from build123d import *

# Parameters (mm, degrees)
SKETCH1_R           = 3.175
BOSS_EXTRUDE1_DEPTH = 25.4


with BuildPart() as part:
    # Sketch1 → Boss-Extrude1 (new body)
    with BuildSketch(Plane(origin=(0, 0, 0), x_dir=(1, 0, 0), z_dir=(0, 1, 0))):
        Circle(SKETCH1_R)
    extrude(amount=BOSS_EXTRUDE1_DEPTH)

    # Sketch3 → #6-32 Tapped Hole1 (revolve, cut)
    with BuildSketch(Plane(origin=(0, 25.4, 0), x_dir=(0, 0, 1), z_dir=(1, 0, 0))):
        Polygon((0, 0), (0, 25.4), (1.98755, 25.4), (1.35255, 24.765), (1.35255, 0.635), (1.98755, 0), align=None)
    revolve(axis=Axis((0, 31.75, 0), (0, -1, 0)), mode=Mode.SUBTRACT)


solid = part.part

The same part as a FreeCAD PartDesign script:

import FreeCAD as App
import Part
import Sketcher

V = App.Vector
Q = App.Units.Quantity


def add_polygon(sketch, points):
    """Adds a closed chain of lines whose ends are joined by coincident constraints."""
    first, n = sketch.GeometryCount, len(points)
    for a, b in zip(points, points[1:] + points[:1]):
        sketch.addGeometry(Part.LineSegment(App.Vector(*a, 0), App.Vector(*b, 0)), False)
    for i in range(n):
        sketch.addConstraint(Sketcher.Constraint("Coincident", first + i, 2, first + (i + 1) % n, 1))

doc = App.newDocument("Part")
body = doc.addObject("PartDesign::Body", "Body")

# Sketch on XZ plane
sketch1 = body.newObject("Sketcher::SketchObject", "Sketch")
sketch1.AttachmentSupport = (doc.getObject("XZ_Plane"), [""])
sketch1.MapMode = "FlatFace"
sketch1.addGeometry(Part.Circle(V(0, 0, 0), V(0, 0, 1), 3.2), False)
sketch1.addConstraint([
    Sketcher.Constraint("Coincident", 0, 3, -1, 1),
    Sketcher.Constraint("Diameter", 0, Q("0.25 in")),
])
pad1 = body.newObject("PartDesign::Pad", "Pad")
pad1.Profile = sketch1
pad1.Length = Q("1 in")
pad1.Reversed = True

# Sketch on YZ plane
sketch2 = body.newObject("Sketcher::SketchObject", "Sketch001")
sketch2.AttachmentSupport = (doc.getObject("YZ_Plane"), [""])
sketch2.MapMode = "FlatFace"
add_polygon(sketch2, [(0, 0), (25.4, 0), (25.4, 2), (24.8, 1.4), (0.6, 1.4), (0, 2)])  # lines 0-5
sketch2.addConstraint([
    Sketcher.Constraint("Horizontal", 0),
    Sketcher.Constraint("Vertical", 1),
    Sketcher.Constraint("Horizontal", 3),
    Sketcher.Constraint("Vertical", 5),
    Sketcher.Constraint("Coincident", 5, 2, -1, 1),
    Sketcher.Constraint("Perpendicular", 2, 4),
    Sketcher.Constraint("Horizontal", 1, 2, 4, 2),
    Sketcher.Constraint("Equal", 2, 4),
    Sketcher.Constraint("DistanceX", 0, 1, 0, 2, Q("1 in")),
    Sketcher.Constraint("DistanceX", 3, 2, 3, 1, Q("0.95 in")),
    Sketcher.Constraint("DistanceY", 1, 1, 1, 2, Q("1.98755 mm")),
])
groove = body.newObject("PartDesign::Groove", "Groove")
groove.Profile = sketch2
groove.ReferenceAxis = (sketch2, ["H_Axis"])
groove.Angle = 360

doc.recompute()
